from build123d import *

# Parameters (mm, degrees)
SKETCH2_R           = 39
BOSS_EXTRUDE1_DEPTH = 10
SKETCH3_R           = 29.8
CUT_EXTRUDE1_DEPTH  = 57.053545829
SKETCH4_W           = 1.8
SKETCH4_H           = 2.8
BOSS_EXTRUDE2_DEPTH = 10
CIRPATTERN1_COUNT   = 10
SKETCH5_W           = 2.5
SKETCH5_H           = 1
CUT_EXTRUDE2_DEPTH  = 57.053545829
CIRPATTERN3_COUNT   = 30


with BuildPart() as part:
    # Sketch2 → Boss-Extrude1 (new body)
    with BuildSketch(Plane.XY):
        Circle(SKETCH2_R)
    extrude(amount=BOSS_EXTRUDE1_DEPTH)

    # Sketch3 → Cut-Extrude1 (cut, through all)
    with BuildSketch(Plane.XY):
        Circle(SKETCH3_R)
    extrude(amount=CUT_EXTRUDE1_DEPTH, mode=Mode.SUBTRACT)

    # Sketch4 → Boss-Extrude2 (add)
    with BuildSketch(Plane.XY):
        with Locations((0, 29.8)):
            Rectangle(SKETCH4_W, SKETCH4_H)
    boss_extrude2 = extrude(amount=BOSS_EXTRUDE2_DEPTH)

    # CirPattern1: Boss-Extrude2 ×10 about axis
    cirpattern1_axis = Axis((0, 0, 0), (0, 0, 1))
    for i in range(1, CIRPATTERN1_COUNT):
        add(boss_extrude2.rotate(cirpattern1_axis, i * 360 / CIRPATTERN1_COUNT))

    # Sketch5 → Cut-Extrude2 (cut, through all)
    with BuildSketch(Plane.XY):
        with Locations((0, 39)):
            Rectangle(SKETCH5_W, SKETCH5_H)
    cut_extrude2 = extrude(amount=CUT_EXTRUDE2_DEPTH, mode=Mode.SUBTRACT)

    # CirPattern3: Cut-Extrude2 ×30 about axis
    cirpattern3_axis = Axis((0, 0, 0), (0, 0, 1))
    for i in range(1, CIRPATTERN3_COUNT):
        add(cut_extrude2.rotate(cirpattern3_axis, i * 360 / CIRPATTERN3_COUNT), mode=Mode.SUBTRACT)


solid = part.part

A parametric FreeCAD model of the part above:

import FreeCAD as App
import Part
import Sketcher

V = App.Vector

doc = App.newDocument("Part")
body = doc.addObject("PartDesign::Body", "Body")

sketch1 = body.newObject("Sketcher::SketchObject", "Sketch")
sketch1.AttachmentSupport = (doc.getObject("XY_Plane"), [""])
sketch1.MapMode = "FlatFace"
sketch1.addGeometry(Part.Circle(V(0, 0, 0), V(0, 0, 1), 39), False)
sketch1.addConstraint(Sketcher.Constraint("Coincident", 0, 3, -1, 1))
sketch1.addConstraint(Sketcher.Constraint("Diameter", 0, 78.0))
pad1 = body.newObject("PartDesign::Pad", "Pad")
pad1.Profile = sketch1
pad1.Length = 10

sketch2 = body.newObject("Sketcher::SketchObject", "Sketch001")
sketch2.AttachmentSupport = (doc.getObject("XY_Plane"), [""])
sketch2.MapMode = "FlatFace"
sketch2.addGeometry(Part.Circle(V(0, 0, 0), V(0, 0, 1), 29.8), False)
sketch2.addConstraint(Sketcher.Constraint("Coincident", 0, 3, -1, 1))
sketch2.addConstraint(Sketcher.Constraint("Diameter", 0, 59.6))
pocket1 = body.newObject("PartDesign::Pocket", "Pocket")
pocket1.Profile = sketch2
pocket1.Type = "ThroughAll"
pocket1.Reversed = True

sketch3 = body.newObject("Sketcher::SketchObject", "Sketch002")
sketch3.AttachmentSupport = (doc.getObject("XY_Plane"), [""])
sketch3.MapMode = "FlatFace"
sketch3.addGeometry(Part.LineSegment(V(-0.9, 31.2, 0), V(-0.9, 28.4, 0)), False)
sketch3.addGeometry(Part.LineSegment(V(-0.9, 28.4, 0), V(0.9, 28.4, 0)), False)
sketch3.addGeometry(Part.LineSegment(V(0.9, 28.4, 0), V(0.9, 31.2, 0)), False)
sketch3.addGeometry(Part.LineSegment(V(0.9, 31.2, 0), V(-0.9, 31.2, 0)), False)
sketch3.addConstraint(Sketcher.Constraint("Coincident", 0, 2, 1, 1))
sketch3.addConstraint(Sketcher.Constraint("Coincident", 1, 2, 2, 1))
sketch3.addConstraint(Sketcher.Constraint("Coincident", 2, 2, 3, 1))
sketch3.addConstraint(Sketcher.Constraint("Coincident", 3, 2, 0, 1))
sketch3.addConstraint(Sketcher.Constraint("Vertical", 0))
sketch3.addConstraint(Sketcher.Constraint("Horizontal", 1))
sketch3.addConstraint(Sketcher.Constraint("Vertical", 2))
sketch3.addConstraint(Sketcher.Constraint("Horizontal", 3))
sketch3.addConstraint(Sketcher.Constraint("DistanceX", 1, 1, 1, 2, 1.8))
sketch3.addConstraint(Sketcher.Constraint("DistanceY", 0, 2, 0, 1, 2.8))
sketch3.addConstraint(Sketcher.Constraint("DistanceX", 0, 2, -1, 1, 0.9))
sketch3.addConstraint(Sketcher.Constraint("DistanceY", -1, 1, 0, 2, 28.4))
pad2 = body.newObject("PartDesign::Pad", "Pad001")
pad2.Profile = sketch3
pad2.Length = 10
doc.recompute()

polarpattern = body.newObject("PartDesign::PolarPattern", "PolarPattern")
polarpattern.Originals = [pad2]
polarpattern.Axis = (doc.getObject("Z_Axis"), [""])
polarpattern.Angle = 360
polarpattern.Occurrences = 10
body.Tip = polarpattern

sketch4 = body.newObject("Sketcher::SketchObject", "Sketch003")
sketch4.AttachmentSupport = (doc.getObject("XY_Plane"), [""])
sketch4.MapMode = "FlatFace"
sketch4.addGeometry(Part.LineSegment(V(-1.25, 39.5, 0), V(-1.25, 38.5, 0)), False)
sketch4.addGeometry(Part.LineSegment(V(-1.25, 38.5, 0), V(1.25, 38.5, 0)), False)
sketch4.addGeometry(Part.LineSegment(V(1.25, 38.5, 0), V(1.25, 39.5, 0)), False)
sketch4.addGeometry(Part.LineSegment(V(1.25, 39.5, 0), V(-1.25, 39.5, 0)), False)
sketch4.addConstraint(Sketcher.Constraint("Coincident", 0, 2, 1, 1))
sketch4.addConstraint(Sketcher.Constraint("Coincident", 1, 2, 2, 1))
sketch4.addConstraint(Sketcher.Constraint("Coincident", 2, 2, 3, 1))
sketch4.addConstraint(Sketcher.Constraint("Coincident", 3, 2, 0, 1))
sketch4.addConstraint(Sketcher.Constraint("Vertical", 0))
sketch4.addConstraint(Sketcher.Constraint("Horizontal", 1))
sketch4.addConstraint(Sketcher.Constraint("Vertical", 2))
sketch4.addConstraint(Sketcher.Constraint("Horizontal", 3))
sketch4.addConstraint(Sketcher.Constraint("DistanceY", 0, 2, 0, 1, 1.0))
sketch4.addConstraint(Sketcher.Constraint("DistanceX", 1, 1, 1, 2, 2.5))
sketch4.addConstraint(Sketcher.Constraint("DistanceY", -1, 1, 0, 2, 38.5))
sketch4.addConstraint(Sketcher.Constraint("DistanceX", 0, 2, -1, 1, 1.25))
pocket2 = body.newObject("PartDesign::Pocket", "Pocket001")
pocket2.Profile = sketch4
pocket2.Type = "ThroughAll"
pocket2.Reversed = True
doc.recompute()

polarpattern2 = body.newObject("PartDesign::PolarPattern", "PolarPattern001")
polarpattern2.Originals = [pocket2]
polarpattern2.Axis = (doc.getObject("Z_Axis"), [""])
polarpattern2.Angle = 360
polarpattern2.Occurrences = 30
body.Tip = polarpattern2

doc.recompute()
